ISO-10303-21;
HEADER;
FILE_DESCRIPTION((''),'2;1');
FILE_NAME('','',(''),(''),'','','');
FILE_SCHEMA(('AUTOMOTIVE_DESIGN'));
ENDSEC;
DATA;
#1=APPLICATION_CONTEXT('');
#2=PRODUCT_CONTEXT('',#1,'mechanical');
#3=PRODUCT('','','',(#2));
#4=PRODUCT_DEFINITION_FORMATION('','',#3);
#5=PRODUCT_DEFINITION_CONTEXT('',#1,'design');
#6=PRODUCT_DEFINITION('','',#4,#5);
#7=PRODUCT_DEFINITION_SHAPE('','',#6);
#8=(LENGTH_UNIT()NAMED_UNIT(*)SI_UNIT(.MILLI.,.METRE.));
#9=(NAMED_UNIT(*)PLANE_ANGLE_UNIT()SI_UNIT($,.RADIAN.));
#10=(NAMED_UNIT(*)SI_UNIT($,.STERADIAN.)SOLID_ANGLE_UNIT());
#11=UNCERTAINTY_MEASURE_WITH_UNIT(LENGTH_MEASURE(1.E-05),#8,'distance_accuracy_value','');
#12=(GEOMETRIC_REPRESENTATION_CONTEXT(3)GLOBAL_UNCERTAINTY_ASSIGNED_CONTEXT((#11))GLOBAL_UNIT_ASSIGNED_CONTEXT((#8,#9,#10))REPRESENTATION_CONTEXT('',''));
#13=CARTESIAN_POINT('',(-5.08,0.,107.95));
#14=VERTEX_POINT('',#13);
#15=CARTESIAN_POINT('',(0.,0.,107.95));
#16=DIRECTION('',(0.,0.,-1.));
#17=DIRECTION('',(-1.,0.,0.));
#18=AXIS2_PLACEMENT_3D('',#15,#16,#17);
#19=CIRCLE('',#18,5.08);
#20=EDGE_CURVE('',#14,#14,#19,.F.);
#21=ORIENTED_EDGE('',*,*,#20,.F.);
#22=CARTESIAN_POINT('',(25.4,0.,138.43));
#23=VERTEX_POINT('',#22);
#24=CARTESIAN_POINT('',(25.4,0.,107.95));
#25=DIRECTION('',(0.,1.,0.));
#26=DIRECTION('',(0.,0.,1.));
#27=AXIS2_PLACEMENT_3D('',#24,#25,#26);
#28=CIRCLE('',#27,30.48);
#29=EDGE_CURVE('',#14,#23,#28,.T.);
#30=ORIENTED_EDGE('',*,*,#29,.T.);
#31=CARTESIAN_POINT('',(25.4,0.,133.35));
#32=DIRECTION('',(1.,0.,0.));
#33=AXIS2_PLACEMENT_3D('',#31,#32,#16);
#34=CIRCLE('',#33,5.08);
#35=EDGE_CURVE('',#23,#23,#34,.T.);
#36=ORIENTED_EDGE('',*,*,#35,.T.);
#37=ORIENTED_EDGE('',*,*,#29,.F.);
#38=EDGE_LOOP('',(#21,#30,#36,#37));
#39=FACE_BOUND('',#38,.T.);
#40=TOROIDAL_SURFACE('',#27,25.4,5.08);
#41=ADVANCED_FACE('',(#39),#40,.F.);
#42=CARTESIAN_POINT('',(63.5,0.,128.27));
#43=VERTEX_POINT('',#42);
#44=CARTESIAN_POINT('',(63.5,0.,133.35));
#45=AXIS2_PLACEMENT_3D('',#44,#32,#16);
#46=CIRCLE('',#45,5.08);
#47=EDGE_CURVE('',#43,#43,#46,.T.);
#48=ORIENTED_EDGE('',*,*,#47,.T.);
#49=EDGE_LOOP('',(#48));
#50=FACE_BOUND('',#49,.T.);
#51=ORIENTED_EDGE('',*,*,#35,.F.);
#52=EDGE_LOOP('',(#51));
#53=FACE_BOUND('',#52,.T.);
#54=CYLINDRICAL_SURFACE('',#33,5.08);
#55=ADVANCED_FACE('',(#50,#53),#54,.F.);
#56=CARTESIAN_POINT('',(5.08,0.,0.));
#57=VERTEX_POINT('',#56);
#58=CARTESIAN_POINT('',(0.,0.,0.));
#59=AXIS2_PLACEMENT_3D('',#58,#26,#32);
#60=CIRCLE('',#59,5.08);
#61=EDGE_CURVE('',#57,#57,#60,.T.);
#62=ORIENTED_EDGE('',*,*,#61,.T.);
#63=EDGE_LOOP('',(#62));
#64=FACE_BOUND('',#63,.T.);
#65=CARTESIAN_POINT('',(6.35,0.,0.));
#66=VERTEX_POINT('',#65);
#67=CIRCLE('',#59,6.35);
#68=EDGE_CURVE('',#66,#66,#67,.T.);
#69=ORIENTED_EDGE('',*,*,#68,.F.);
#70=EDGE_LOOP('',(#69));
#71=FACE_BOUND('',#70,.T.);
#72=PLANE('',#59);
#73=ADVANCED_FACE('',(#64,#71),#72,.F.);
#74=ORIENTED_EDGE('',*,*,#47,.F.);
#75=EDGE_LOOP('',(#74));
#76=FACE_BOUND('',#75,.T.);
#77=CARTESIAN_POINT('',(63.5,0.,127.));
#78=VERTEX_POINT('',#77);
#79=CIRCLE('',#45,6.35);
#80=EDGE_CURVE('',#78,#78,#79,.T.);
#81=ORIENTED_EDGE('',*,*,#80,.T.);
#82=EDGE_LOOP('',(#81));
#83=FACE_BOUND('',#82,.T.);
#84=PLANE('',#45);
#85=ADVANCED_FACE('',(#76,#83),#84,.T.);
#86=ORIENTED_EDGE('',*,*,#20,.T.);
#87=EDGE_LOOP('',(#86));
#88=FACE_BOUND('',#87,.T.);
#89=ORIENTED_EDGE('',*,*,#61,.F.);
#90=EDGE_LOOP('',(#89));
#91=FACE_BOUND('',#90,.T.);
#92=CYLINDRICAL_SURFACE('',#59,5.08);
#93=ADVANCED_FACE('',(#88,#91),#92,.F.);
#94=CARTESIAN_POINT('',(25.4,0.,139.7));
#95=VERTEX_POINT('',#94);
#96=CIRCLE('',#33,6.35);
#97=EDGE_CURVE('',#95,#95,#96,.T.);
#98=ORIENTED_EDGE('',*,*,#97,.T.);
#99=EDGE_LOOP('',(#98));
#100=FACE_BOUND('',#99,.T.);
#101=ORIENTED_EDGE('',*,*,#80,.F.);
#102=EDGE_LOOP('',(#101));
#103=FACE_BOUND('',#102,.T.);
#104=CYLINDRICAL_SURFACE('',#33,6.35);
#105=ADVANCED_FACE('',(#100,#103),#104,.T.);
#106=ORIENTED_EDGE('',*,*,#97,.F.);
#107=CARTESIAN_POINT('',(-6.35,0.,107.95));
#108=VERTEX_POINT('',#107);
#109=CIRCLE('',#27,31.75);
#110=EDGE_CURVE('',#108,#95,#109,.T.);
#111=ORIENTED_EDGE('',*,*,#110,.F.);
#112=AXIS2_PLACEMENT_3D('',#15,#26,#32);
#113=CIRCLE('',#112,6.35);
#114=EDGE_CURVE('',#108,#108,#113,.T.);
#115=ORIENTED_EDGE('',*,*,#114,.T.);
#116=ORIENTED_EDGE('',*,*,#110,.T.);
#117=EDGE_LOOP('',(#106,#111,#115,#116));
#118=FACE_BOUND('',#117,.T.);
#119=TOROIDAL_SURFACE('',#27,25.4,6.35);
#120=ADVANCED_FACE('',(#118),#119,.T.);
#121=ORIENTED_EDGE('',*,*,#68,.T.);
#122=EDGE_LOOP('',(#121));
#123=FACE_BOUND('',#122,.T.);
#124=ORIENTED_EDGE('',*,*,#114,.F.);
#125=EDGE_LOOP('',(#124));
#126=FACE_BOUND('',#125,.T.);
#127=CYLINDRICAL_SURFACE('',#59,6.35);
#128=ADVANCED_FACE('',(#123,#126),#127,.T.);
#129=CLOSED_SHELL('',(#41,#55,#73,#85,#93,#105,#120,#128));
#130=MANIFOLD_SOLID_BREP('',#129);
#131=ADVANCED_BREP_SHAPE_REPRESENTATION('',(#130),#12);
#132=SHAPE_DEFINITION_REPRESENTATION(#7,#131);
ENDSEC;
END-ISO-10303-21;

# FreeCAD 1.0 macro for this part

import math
import FreeCAD as App
import Part
import Sketcher
Q = App.Units.Quantity

doc = App.newDocument("Part")
body = doc.addObject("PartDesign::Body", "Body")

sketch1 = body.newObject("Sketcher::SketchObject", "Sketch")
sketch1.AttachmentSupport = (doc.getObject("XY_Plane"), [""])
sketch1.MapMode = "FlatFace"
sketch1.addGeometry(Part.Circle(App.Vector(0, 0, 0), App.Vector(0, 0, 1), 6), False)
sketch1.addGeometry(Part.Circle(App.Vector(0, 0, 0), App.Vector(0, 0, 1), 5), False)
sketch1.addConstraint(Sketcher.Constraint("Coincident", 0, 3, -1, 1))
sketch1.addConstraint(Sketcher.Constraint("Coincident", 1, 3, -1, 1))
sketch1.addConstraint(Sketcher.Constraint("Diameter", 0, Q("0.5 in")))
sketch1.addConstraint(Sketcher.Constraint("Diameter", 1, Q("0.4 in")))

sketch2 = body.newObject("Sketcher::SketchObject", "Sketch001")
sketch2.AttachmentSupport = (doc.getObject("XZ_Plane"), [""])
sketch2.MapMode = "FlatFace"
sketch2.addGeometry(Part.LineSegment(App.Vector(0, 0, 0), App.Vector(0, 108, 0)), False)
sketch2.addGeometry(Part.ArcOfCircle(Part.Circle(App.Vector(25, 108, 0), App.Vector(0, 0, 1), 25), math.radians(90), math.radians(180)), False)
sketch2.addGeometry(Part.LineSegment(App.Vector(25, 133, 0), App.Vector(64, 133, 0)), False)
sketch2.addConstraint(Sketcher.Constraint("Tangent", 0, 2, 1, 2))
sketch2.addConstraint(Sketcher.Constraint("Tangent", 1, 1, 2, 1))
sketch2.addConstraint(Sketcher.Constraint("Vertical", 0))
sketch2.addConstraint(Sketcher.Constraint("Horizontal", 2))
sketch2.addConstraint(Sketcher.Constraint("Coincident", 0, 1, -1, 1))
sketch2.addConstraint(Sketcher.Constraint("Radius", 1, Q("1 in")))
sketch2.addConstraint(Sketcher.Constraint("DistanceX", 2, 1, 2, 2, Q("1.5 in")))
sketch2.addConstraint(Sketcher.Constraint("DistanceY", 0, 1, 0, 2, Q("4.25 in")))
doc.recompute()

additivepipe = body.newObject("PartDesign::AdditivePipe", "AdditivePipe")
additivepipe.Profile = sketch1
additivepipe.Spine = (sketch2, ["Edge1", "Edge2", "Edge3"])

doc.recompute()
